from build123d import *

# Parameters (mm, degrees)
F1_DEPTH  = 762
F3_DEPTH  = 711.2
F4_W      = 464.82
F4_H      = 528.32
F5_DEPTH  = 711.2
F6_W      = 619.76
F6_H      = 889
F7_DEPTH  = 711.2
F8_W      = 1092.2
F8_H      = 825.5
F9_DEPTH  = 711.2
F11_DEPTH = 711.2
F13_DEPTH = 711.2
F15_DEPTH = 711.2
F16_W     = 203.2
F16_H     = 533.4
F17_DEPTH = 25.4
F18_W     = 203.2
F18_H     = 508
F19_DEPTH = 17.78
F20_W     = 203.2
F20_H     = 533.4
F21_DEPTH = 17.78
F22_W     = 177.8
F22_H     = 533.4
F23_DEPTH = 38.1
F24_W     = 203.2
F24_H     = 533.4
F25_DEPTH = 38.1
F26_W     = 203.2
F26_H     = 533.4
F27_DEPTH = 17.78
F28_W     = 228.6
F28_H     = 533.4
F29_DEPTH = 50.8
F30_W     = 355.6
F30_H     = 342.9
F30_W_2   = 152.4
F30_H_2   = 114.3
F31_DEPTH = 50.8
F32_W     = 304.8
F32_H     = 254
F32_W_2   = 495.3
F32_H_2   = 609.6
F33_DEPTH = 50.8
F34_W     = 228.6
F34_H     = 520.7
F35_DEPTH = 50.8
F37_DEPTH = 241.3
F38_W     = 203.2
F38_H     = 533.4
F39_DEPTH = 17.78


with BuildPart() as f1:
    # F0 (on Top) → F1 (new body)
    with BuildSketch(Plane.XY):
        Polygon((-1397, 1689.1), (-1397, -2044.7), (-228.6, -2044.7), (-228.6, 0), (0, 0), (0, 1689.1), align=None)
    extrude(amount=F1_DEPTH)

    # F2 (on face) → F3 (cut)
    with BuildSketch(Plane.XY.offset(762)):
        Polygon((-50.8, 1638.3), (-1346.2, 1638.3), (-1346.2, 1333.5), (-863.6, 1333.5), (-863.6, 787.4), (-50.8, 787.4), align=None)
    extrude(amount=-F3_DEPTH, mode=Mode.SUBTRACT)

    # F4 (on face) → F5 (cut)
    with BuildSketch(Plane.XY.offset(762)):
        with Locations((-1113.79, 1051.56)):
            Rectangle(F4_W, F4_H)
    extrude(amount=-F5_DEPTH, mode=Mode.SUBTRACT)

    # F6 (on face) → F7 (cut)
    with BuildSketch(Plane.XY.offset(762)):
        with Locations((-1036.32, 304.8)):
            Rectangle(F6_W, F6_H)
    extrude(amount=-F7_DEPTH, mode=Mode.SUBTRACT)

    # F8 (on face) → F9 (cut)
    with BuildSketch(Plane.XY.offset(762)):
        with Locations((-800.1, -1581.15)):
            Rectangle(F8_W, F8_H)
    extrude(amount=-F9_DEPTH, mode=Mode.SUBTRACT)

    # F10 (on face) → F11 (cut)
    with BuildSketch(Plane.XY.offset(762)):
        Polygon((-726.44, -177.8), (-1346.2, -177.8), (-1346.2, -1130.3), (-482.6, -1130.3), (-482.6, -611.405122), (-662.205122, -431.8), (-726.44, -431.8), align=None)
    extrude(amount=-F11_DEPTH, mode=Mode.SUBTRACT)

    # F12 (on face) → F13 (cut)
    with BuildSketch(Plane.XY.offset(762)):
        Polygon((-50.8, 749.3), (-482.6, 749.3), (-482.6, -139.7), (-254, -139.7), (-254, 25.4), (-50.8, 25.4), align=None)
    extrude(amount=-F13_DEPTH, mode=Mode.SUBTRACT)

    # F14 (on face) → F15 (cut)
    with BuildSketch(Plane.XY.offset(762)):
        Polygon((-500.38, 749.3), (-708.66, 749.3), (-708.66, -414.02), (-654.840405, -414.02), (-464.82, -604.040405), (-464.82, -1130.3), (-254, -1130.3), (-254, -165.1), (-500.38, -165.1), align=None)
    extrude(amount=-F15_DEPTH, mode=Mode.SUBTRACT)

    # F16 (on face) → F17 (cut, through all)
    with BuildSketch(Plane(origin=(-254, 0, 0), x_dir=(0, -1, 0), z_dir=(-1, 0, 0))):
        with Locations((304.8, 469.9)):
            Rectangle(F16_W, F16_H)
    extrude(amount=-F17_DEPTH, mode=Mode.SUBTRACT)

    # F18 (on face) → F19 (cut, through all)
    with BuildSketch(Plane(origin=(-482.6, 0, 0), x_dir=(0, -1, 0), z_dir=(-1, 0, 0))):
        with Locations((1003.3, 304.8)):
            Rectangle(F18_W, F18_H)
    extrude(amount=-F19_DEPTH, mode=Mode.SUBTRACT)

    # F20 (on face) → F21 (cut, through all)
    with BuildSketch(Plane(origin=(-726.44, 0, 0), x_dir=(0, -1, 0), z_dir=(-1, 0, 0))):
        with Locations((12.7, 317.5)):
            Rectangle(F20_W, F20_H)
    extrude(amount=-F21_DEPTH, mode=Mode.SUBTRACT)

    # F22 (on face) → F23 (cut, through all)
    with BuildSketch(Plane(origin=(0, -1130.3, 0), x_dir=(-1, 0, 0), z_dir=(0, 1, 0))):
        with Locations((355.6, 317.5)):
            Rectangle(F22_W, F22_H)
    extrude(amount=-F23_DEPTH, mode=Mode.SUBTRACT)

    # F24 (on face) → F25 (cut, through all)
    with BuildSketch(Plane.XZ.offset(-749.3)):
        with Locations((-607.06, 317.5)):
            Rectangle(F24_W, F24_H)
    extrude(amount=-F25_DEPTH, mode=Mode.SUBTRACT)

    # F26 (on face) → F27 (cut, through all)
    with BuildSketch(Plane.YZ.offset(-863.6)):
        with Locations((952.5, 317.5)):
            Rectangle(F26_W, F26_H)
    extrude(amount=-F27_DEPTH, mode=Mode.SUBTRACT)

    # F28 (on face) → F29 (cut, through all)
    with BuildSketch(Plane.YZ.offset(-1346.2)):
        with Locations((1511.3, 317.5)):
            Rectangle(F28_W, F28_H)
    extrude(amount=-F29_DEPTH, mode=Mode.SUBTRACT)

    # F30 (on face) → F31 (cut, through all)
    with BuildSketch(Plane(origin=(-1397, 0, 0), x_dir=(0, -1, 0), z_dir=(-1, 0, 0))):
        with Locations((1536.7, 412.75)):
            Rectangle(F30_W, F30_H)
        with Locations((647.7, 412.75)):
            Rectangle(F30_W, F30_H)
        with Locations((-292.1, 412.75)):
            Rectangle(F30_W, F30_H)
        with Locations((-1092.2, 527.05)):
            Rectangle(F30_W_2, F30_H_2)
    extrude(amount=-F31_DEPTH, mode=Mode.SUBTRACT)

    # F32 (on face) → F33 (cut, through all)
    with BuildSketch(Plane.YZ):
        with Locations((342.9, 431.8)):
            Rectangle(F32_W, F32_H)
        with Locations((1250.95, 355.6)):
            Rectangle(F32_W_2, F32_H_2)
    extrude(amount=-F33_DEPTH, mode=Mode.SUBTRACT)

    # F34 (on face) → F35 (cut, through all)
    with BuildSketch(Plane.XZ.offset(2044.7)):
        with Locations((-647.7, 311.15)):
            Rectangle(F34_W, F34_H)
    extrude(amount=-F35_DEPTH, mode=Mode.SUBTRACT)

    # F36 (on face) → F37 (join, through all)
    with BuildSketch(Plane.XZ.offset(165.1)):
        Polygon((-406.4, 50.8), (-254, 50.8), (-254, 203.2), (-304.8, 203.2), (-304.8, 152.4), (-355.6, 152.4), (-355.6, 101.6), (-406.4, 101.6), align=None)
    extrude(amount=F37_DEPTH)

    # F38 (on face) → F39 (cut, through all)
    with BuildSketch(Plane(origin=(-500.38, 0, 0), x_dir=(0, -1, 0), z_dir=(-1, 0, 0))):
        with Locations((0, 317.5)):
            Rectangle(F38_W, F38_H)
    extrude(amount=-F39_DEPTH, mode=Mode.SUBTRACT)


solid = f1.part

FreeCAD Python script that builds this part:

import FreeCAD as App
import Part
import Sketcher
Q = App.Units.Quantity

doc = App.newDocument("Part")
body = doc.addObject("PartDesign::Body", "Body")

# Sketch on XY plane
sketch1 = body.newObject("Sketcher::SketchObject", "Sketch")
sketch1.AttachmentSupport = (doc.getObject("XY_Plane"), [""])
sketch1.MapMode = "FlatFace"
sketch1.addGeometry(Part.LineSegment(App.Vector(-1397, 1689.1, 0), App.Vector(-1397, -2044.7, 0)), False)
sketch1.addGeometry(Part.LineSegment(App.Vector(-1397, -2044.7, 0), App.Vector(-228.6, -2044.7, 0)), False)
sketch1.addGeometry(Part.LineSegment(App.Vector(-228.6, -2044.7, 0), App.Vector(-228.6, 0, 0)), False)
sketch1.addGeometry(Part.LineSegment(App.Vector(-228.6, 0, 0), App.Vector(0, 0, 0)), False)
sketch1.addGeometry(Part.LineSegment(App.Vector(0, 0, 0), App.Vector(0, 1689.1, 0)), False)
sketch1.addGeometry(Part.LineSegment(App.Vector(0, 1689.1, 0), App.Vector(-1397, 1689.1, 0)), False)
sketch1.addConstraint(Sketcher.Constraint("Coincident", 0, 2, 1, 1))
sketch1.addConstraint(Sketcher.Constraint("Coincident", 1, 2, 2, 1))
sketch1.addConstraint(Sketcher.Constraint("Coincident", 2, 2, 3, 1))
sketch1.addConstraint(Sketcher.Constraint("Coincident", 3, 2, 4, 1))
sketch1.addConstraint(Sketcher.Constraint("Coincident", 4, 2, 5, 1))
sketch1.addConstraint(Sketcher.Constraint("Coincident", 5, 2, 0, 1))
sketch1.addConstraint(Sketcher.Constraint("Vertical", 0))
sketch1.addConstraint(Sketcher.Constraint("Horizontal", 1))
sketch1.addConstraint(Sketcher.Constraint("Vertical", 2))
sketch1.addConstraint(Sketcher.Constraint("Horizontal", 3))
sketch1.addConstraint(Sketcher.Constraint("Vertical", 4))
sketch1.addConstraint(Sketcher.Constraint("Horizontal", 5))
sketch1.addConstraint(Sketcher.Constraint("Coincident", 3, 2, -1, 1))
sketch1.addConstraint(Sketcher.Constraint("DistanceX", 1, 1, 1, 2, Q("46 in")))
sketch1.addConstraint(Sketcher.Constraint("DistanceX", 3, 1, 3, 2, Q("9 in")))
sketch1.addConstraint(Sketcher.Constraint("DistanceY", 0, 2, 0, 1, Q("147 in")))
sketch1.addConstraint(Sketcher.Constraint("DistanceY", 2, 1, 2, 2, Q("80.5 in")))
pad1 = body.newObject("PartDesign::Pad", "Pad")
pad1.Profile = sketch1
pad1.Length = Q("30 in")

# Sketch on XY plane
sketch2 = body.newObject("Sketcher::SketchObject", "Sketch001")
sketch2.AttachmentSupport = (doc.getObject("XY_Plane"), [""])
sketch2.MapMode = "FlatFace"
sketch2.AttachmentOffset = App.Placement(App.Vector(0, 0, 30 * 25.4), App.Rotation())
sketch2.addGeometry(Part.LineSegment(App.Vector(-50.8, 1638.3, 0), App.Vector(-1346.2, 1638.3, 0)), False)
sketch2.addGeometry(Part.LineSegment(App.Vector(-1346.2, 1638.3, 0), App.Vector(-1346.2, 1333.5, 0)), False)
sketch2.addGeometry(Part.LineSegment(App.Vector(-1346.2, 1333.5, 0), App.Vector(-863.6, 1333.5, 0)), False)
sketch2.addGeometry(Part.LineSegment(App.Vector(-863.6, 1333.5, 0), App.Vector(-863.6, 787.4, 0)), False)
sketch2.addGeometry(Part.LineSegment(App.Vector(-863.6, 787.4, 0), App.Vector(-50.8, 787.4, 0)), False)
sketch2.addGeometry(Part.LineSegment(App.Vector(-50.8, 787.4, 0), App.Vector(-50.8, 1638.3, 0)), False)
sketch2.addConstraint(Sketcher.Constraint("Coincident", 0, 2, 1, 1))
sketch2.addConstraint(Sketcher.Constraint("Coincident", 1, 2, 2, 1))
sketch2.addConstraint(Sketcher.Constraint("Coincident", 2, 2, 3, 1))
sketch2.addConstraint(Sketcher.Constraint("Coincident", 3, 2, 4, 1))
sketch2.addConstraint(Sketcher.Constraint("Coincident", 4, 2, 5, 1))
sketch2.addConstraint(Sketcher.Constraint("Coincident", 5, 2, 0, 1))
sketch2.addConstraint(Sketcher.Constraint("Horizontal", 0))
sketch2.addConstraint(Sketcher.Constraint("Vertical", 1))
sketch2.addConstraint(Sketcher.Constraint("Horizontal", 2))
sketch2.addConstraint(Sketcher.Constraint("Vertical", 3))
sketch2.addConstraint(Sketcher.Constraint("Horizontal", 4))
sketch2.addConstraint(Sketcher.Constraint("Vertical", 5))
sketch2.addConstraint(Sketcher.Constraint("DistanceX", 0, 2, 0, 1, Q("51 in")))
sketch2.addConstraint(Sketcher.Constraint("DistanceX", 2, 1, 2, 2, Q("19 in")))
sketch2.addConstraint(Sketcher.Constraint("DistanceY", 1, 2, 1, 1, Q("12 in")))
sketch2.addConstraint(Sketcher.Constraint("DistanceY", 3, 2, 3, 1, Q("21.5 in")))
sketch2.addConstraint(Sketcher.Constraint("DistanceX", 0, 2, -1, 1, Q("53 in")))
sketch2.addConstraint(Sketcher.Constraint("DistanceY", -1, 1, 3, 2, Q("31 in")))
pocket1 = body.newObject("PartDesign::Pocket", "Pocket")
pocket1.Profile = sketch2
pocket1.Length = Q("28 in")

# Sketch on XY plane
sketch3 = body.newObject("Sketcher::SketchObject", "Sketch002")
sketch3.AttachmentSupport = (doc.getObject("XY_Plane"), [""])
sketch3.MapMode = "FlatFace"
sketch3.AttachmentOffset = App.Placement(App.Vector(0, 0, 30 * 25.4), App.Rotation())
sketch3.addGeometry(Part.LineSegment(App.Vector(-1346.2, 1315.72, 0), App.Vector(-1346.2, 787.4, 0)), False)
sketch3.addGeometry(Part.LineSegment(App.Vector(-1346.2, 787.4, 0), App.Vector(-881.38, 787.4, 0)), False)
sketch3.addGeometry(Part.LineSegment(App.Vector(-881.38, 787.4, 0), App.Vector(-881.38, 1315.72, 0)), False)
sketch3.addGeometry(Part.LineSegment(App.Vector(-881.38, 1315.72, 0), App.Vector(-1346.2, 1315.72, 0)), False)
sketch3.addConstraint(Sketcher.Constraint("Coincident", 0, 2, 1, 1))
sketch3.addConstraint(Sketcher.Constraint("Coincident", 1, 2, 2, 1))
sketch3.addConstraint(Sketcher.Constraint("Coincident", 2, 2, 3, 1))
sketch3.addConstraint(Sketcher.Constraint("Coincident", 3, 2, 0, 1))
sketch3.addConstraint(Sketcher.Constraint("Vertical", 0))
sketch3.addConstraint(Sketcher.Constraint("Horizontal", 1))
sketch3.addConstraint(Sketcher.Constraint("Vertical", 2))
sketch3.addConstraint(Sketcher.Constraint("Horizontal", 3))
sketch3.addConstraint(Sketcher.Constraint("DistanceX", 1, 1, 1, 2, Q("18.3 in")))
sketch3.addConstraint(Sketcher.Constraint("DistanceY", 0, 2, 0, 1, Q("20.8 in")))
sketch3.addConstraint(Sketcher.Constraint("DistanceX", 0, 2, -1, 1, Q("53 in")))
sketch3.addConstraint(Sketcher.Constraint("DistanceY", -1, 1, 0, 2, Q("31 in")))
pocket2 = body.newObject("PartDesign::Pocket", "Pocket001")
pocket2.Profile = sketch3
pocket2.Length = Q("28 in")

# Sketch on XY plane
sketch4 = body.newObject("Sketcher::SketchObject", "Sketch003")
sketch4.AttachmentSupport = (doc.getObject("XY_Plane"), [""])
sketch4.MapMode = "FlatFace"
sketch4.AttachmentOffset = App.Placement(App.Vector(0, 0, 30 * 25.4), App.Rotation())
sketch4.addGeometry(Part.LineSegment(App.Vector(-1346.2, 749.3, 0), App.Vector(-1346.2, -139.7, 0)), False)
sketch4.addGeometry(Part.LineSegment(App.Vector(-1346.2, -139.7, 0), App.Vector(-726.44, -139.7, 0)), False)
sketch4.addGeometry(Part.LineSegment(App.Vector(-726.44, -139.7, 0), App.Vector(-726.44, 749.3, 0)), False)
sketch4.addGeometry(Part.LineSegment(App.Vector(-726.44, 749.3, 0), App.Vector(-1346.2, 749.3, 0)), False)
sketch4.addConstraint(Sketcher.Constraint("Coincident", 0, 2, 1, 1))
sketch4.addConstraint(Sketcher.Constraint("Coincident", 1, 2, 2, 1))
sketch4.addConstraint(Sketcher.Constraint("Coincident", 2, 2, 3, 1))
sketch4.addConstraint(Sketcher.Constraint("Coincident", 3, 2, 0, 1))
sketch4.addConstraint(Sketcher.Constraint("Vertical", 0))
sketch4.addConstraint(Sketcher.Constraint("Horizontal", 1))
sketch4.addConstraint(Sketcher.Constraint("Vertical", 2))
sketch4.addConstraint(Sketcher.Constraint("Horizontal", 3))
sketch4.addConstraint(Sketcher.Constraint("DistanceY", 0, 2, 0, 1, Q("35 in")))
sketch4.addConstraint(Sketcher.Constraint("DistanceX", 1, 1, 1, 2, Q("24.4 in")))
sketch4.addConstraint(Sketcher.Constraint("DistanceX", 0, 2, -1, 1, Q("53 in")))
sketch4.addConstraint(Sketcher.Constraint("DistanceY", 0, 2, -1, 1, Q("5.5 in")))
pocket3 = body.newObject("PartDesign::Pocket", "Pocket002")
pocket3.Profile = sketch4
pocket3.Length = Q("28 in")

# Sketch on XY plane
sketch5 = body.newObject("Sketcher::SketchObject", "Sketch004")
sketch5.AttachmentSupport = (doc.getObject("XY_Plane"), [""])
sketch5.MapMode = "FlatFace"
sketch5.AttachmentOffset = App.Placement(App.Vector(0, 0, 30 * 25.4), App.Rotation())
sketch5.addGeometry(Part.LineSegment(App.Vector(-1346.2, -1168.4, 0), App.Vector(-1346.2, -1993.9, 0)), False)
sketch5.addGeometry(Part.LineSegment(App.Vector(-1346.2, -1993.9, 0), App.Vector(-254, -1993.9, 0)), False)
sketch5.addGeometry(Part.LineSegment(App.Vector(-254, -1993.9, 0), App.Vector(-254, -1168.4, 0)), False)
sketch5.addGeometry(Part.LineSegment(App.Vector(-254, -1168.4, 0), App.Vector(-1346.2, -1168.4, 0)), False)
sketch5.addConstraint(Sketcher.Constraint("Coincident", 0, 2, 1, 1))
sketch5.addConstraint(Sketcher.Constraint("Coincident", 1, 2, 2, 1))
sketch5.addConstraint(Sketcher.Constraint("Coincident", 2, 2, 3, 1))
sketch5.addConstraint(Sketcher.Constraint("Coincident", 3, 2, 0, 1))
sketch5.addConstraint(Sketcher.Constraint("Vertical", 0))
sketch5.addConstraint(Sketcher.Constraint("Horizontal", 1))
sketch5.addConstraint(Sketcher.Constraint("Vertical", 2))
sketch5.addConstraint(Sketcher.Constraint("Horizontal", 3))
sketch5.addConstraint(Sketcher.Constraint("DistanceX", 1, 1, 1, 2, Q("43 in")))
sketch5.addConstraint(Sketcher.Constraint("DistanceY", 0, 2, 0, 1, Q("32.5 in")))
sketch5.addConstraint(Sketcher.Constraint("DistanceX", 0, 2, -1, 1, Q("53 in")))
sketch5.addConstraint(Sketcher.Constraint("DistanceY", 2, 2, -1, 1, Q("46 in")))
pocket4 = body.newObject("PartDesign::Pocket", "Pocket003")
pocket4.Profile = sketch5
pocket4.Length = Q("28 in")

# Sketch on XY plane
sketch6 = body.newObject("Sketcher::SketchObject", "Sketch005")
sketch6.AttachmentSupport = (doc.getObject("XY_Plane"), [""])
sketch6.MapMode = "FlatFace"
sketch6.AttachmentOffset = App.Placement(App.Vector(0, 0, 30 * 25.4), App.Rotation())
sketch6.addGeometry(Part.LineSegment(App.Vector(-726.44, -177.8, 0), App.Vector(-1346.2, -177.8, 0)), False)
sketch6.addGeometry(Part.LineSegment(App.Vector(-1346.2, -177.8, 0), App.Vector(-1346.2, -1130.3, 0)), False)
sketch6.addGeometry(Part.LineSegment(App.Vector(-1346.2, -1130.3, 0), App.Vector(-482.6, -1130.3, 0)), False)
sketch6.addGeometry(Part.LineSegment(App.Vector(-482.6, -1130.3, 0), App.Vector(-482.6, -611.405122, 0)), False)
sketch6.addGeometry(Part.LineSegment(App.Vector(-482.6, -611.405122, 0), App.Vector(-662.205122, -431.8, 0)), False)
sketch6.addGeometry(Part.LineSegment(App.Vector(-662.205122, -431.8, 0), App.Vector(-726.44, -431.8, 0)), False)
sketch6.addGeometry(Part.LineSegment(App.Vector(-726.44, -431.8, 0), App.Vector(-726.44, -177.8, 0)), False)
sketch6.addConstraint(Sketcher.Constraint("Coincident", 0, 2, 1, 1))
sketch6.addConstraint(Sketcher.Constraint("Coincident", 1, 2, 2, 1))
sketch6.addConstraint(Sketcher.Constraint("Coincident", 2, 2, 3, 1))
sketch6.addConstraint(Sketcher.Constraint("Coincident", 3, 2, 4, 1))
sketch6.addConstraint(Sketcher.Constraint("Coincident", 4, 2, 5, 1))
sketch6.addConstraint(Sketcher.Constraint("Coincident", 5, 2, 6, 1))
sketch6.addConstraint(Sketcher.Constraint("Coincident", 6, 2, 0, 1))
sketch6.addConstraint(Sketcher.Constraint("Horizontal", 0))
sketch6.addConstraint(Sketcher.Constraint("Vertical", 1))
sketch6.addConstraint(Sketcher.Constraint("Horizontal", 2))
sketch6.addConstraint(Sketcher.Constraint("Vertical", 3))
sketch6.addConstraint(Sketcher.Constraint("Horizontal", 5))
sketch6.addConstraint(Sketcher.Constraint("Vertical", 6))
sketch6.addConstraint(Sketcher.Constraint("DistanceX", 2, 1, 2, 2, Q("34 in")))
sketch6.addConstraint(Sketcher.Constraint("DistanceY", 6, 1, 6, 2, Q("10 in")))
sketch6.addConstraint(Sketcher.Constraint("Distance", 4, Q("10 in")))
sketch6.addConstraint(Sketcher.Constraint("DistanceX", 0, 2, 0, 1, Q("24.4 in")))
sketch6.addConstraint(Sketcher.Constraint("DistanceY", 1, 2, 1, 1, Q("37.5 in")))
sketch6.addConstraint(Sketcher.Constraint("DistanceX", 0, 2, -1, 1, Q("53 in")))
sketch6.addConstraint(Sketcher.Constraint("DistanceY", 0, 2, -1, 1, Q("7 in")))
sketch6.addConstraint(Sketcher.Constraint("Angle", 4, Q("135 deg")))
pocket5 = body.newObject("PartDesign::Pocket", "Pocket004")
pocket5.Profile = sketch6
pocket5.Length = Q("28 in")

# Sketch on XY plane
sketch7 = body.newObject("Sketcher::SketchObject", "Sketch006")
sketch7.AttachmentSupport = (doc.getObject("XY_Plane"), [""])
sketch7.MapMode = "FlatFace"
sketch7.AttachmentOffset = App.Placement(App.Vector(0, 0, 30 * 25.4), App.Rotation())
sketch7.addGeometry(Part.LineSegment(App.Vector(-50.8, 749.3, 0), App.Vector(-482.6, 749.3, 0)), False)
sketch7.addGeometry(Part.LineSegment(App.Vector(-482.6, 749.3, 0), App.Vector(-482.6, -139.7, 0)), False)
sketch7.addGeometry(Part.LineSegment(App.Vector(-482.6, -139.7, 0), App.Vector(-254, -139.7, 0)), False)
sketch7.addGeometry(Part.LineSegment(App.Vector(-254, -139.7, 0), App.Vector(-254, 25.4, 0)), False)
sketch7.addGeometry(Part.LineSegment(App.Vector(-254, 25.4, 0), App.Vector(-50.8, 25.4, 0)), False)
sketch7.addGeometry(Part.LineSegment(App.Vector(-50.8, 25.4, 0), App.Vector(-50.8, 749.3, 0)), False)
sketch7.addConstraint(Sketcher.Constraint("Coincident", 0, 2, 1, 1))
sketch7.addConstraint(Sketcher.Constraint("Coincident", 1, 2, 2, 1))
sketch7.addConstraint(Sketcher.Constraint("Coincident", 2, 2, 3, 1))
sketch7.addConstraint(Sketcher.Constraint("Coincident", 3, 2, 4, 1))
sketch7.addConstraint(Sketcher.Constraint("Coincident", 4, 2, 5, 1))
sketch7.addConstraint(Sketcher.Constraint("Coincident", 5, 2, 0, 1))
sketch7.addConstraint(Sketcher.Constraint("Horizontal", 0))
sketch7.addConstraint(Sketcher.Constraint("Vertical", 1))
sketch7.addConstraint(Sketcher.Constraint("Horizontal", 2))
sketch7.addConstraint(Sketcher.Constraint("Vertical", 3))
sketch7.addConstraint(Sketcher.Constraint("Horizontal", 4))
sketch7.addConstraint(Sketcher.Constraint("Vertical", 5))
sketch7.addConstraint(Sketcher.Constraint("DistanceX", 0, 2, 0, 1, Q("17 in")))
sketch7.addConstraint(Sketcher.Constraint("DistanceX", 2, 1, 2, 2, Q("9 in")))
sketch7.addConstraint(Sketcher.Constraint("DistanceY", 1, 2, 1, 1, Q("35 in")))
sketch7.addConstraint(Sketcher.Constraint("DistanceY", 3, 1, 3, 2, Q("6.5 in")))
sketch7.addConstraint(Sketcher.Constraint("DistanceX", 0, 2, -1, 1, Q("19 in")))
sketch7.addConstraint(Sketcher.Constraint("DistanceY", -1, 1, 3, 2, Q("1 in")))
pocket6 = body.newObject("PartDesign::Pocket", "Pocket005")
pocket6.Profile = sketch7
pocket6.Length = Q("28 in")

# Sketch on XY plane
sketch8 = body.newObject("Sketcher::SketchObject", "Sketch007")
sketch8.AttachmentSupport = (doc.getObject("XY_Plane"), [""])
sketch8.MapMode = "FlatFace"
sketch8.AttachmentOffset = App.Placement(App.Vector(0, 0, 30 * 25.4), App.Rotation())
sketch8.addGeometry(Part.LineSegment(App.Vector(-500.38, 749.3, 0), App.Vector(-708.66, 749.3, 0)), False)
sketch8.addGeometry(Part.LineSegment(App.Vector(-708.66, 749.3, 0), App.Vector(-708.66, -414.02, 0)), False)
sketch8.addGeometry(Part.LineSegment(App.Vector(-708.66, -414.02, 0), App.Vector(-654.840405, -414.02, 0)), False)
sketch8.addGeometry(Part.LineSegment(App.Vector(-654.840405, -414.02, 0), App.Vector(-464.82, -604.040405, 0)), False)
sketch8.addGeometry(Part.LineSegment(App.Vector(-464.82, -604.040405, 0), App.Vector(-464.82, -1130.3, 0)), False)
sketch8.addGeometry(Part.LineSegment(App.Vector(-464.82, -1130.3, 0), App.Vector(-254, -1130.3, 0)), False)
sketch8.addGeometry(Part.LineSegment(App.Vector(-254, -1130.3, 0), App.Vector(-254, -165.1, 0)), False)
sketch8.addGeometry(Part.LineSegment(App.Vector(-254, -165.1, 0), App.Vector(-500.38, -165.1, 0)), False)
sketch8.addGeometry(Part.LineSegment(App.Vector(-500.38, -165.1, 0), App.Vector(-500.38, 749.3, 0)), False)
sketch8.addConstraint(Sketcher.Constraint("Coincident", 0, 2, 1, 1))
sketch8.addConstraint(Sketcher.Constraint("Coincident", 1, 2, 2, 1))
sketch8.addConstraint(Sketcher.Constraint("Coincident", 2, 2, 3, 1))
sketch8.addConstraint(Sketcher.Constraint("Coincident", 3, 2, 4, 1))
sketch8.addConstraint(Sketcher.Constraint("Coincident", 4, 2, 5, 1))
sketch8.addConstraint(Sketcher.Constraint("Coincident", 5, 2, 6, 1))
sketch8.addConstraint(Sketcher.Constraint("Coincident", 6, 2, 7, 1))
sketch8.addConstraint(Sketcher.Constraint("Coincident", 7, 2, 8, 1))
sketch8.addConstraint(Sketcher.Constraint("Coincident", 8, 2, 0, 1))
sketch8.addConstraint(Sketcher.Constraint("Horizontal", 0))
sketch8.addConstraint(Sketcher.Constraint("Vertical", 1))
sketch8.addConstraint(Sketcher.Constraint("Horizontal", 2))
sketch8.addConstraint(Sketcher.Constraint("Vertical", 4))
sketch8.addConstraint(Sketcher.Constraint("Horizontal", 5))
sketch8.addConstraint(Sketcher.Constraint("Vertical", 6))
sketch8.addConstraint(Sketcher.Constraint("Horizontal", 7))
sketch8.addConstraint(Sketcher.Constraint("Vertical", 8))
sketch8.addConstraint(Sketcher.Constraint("DistanceY", 6, 1, 6, 2, Q("38 in")))
sketch8.addConstraint(Sketcher.Constraint("DistanceY", 8, 1, 8, 2, Q("36 in")))
sketch8.addConstraint(Sketcher.Constraint("DistanceX", 0, 2, 0, 1, Q("8.2 in")))
sketch8.addConstraint(Sketcher.Constraint("DistanceX", 5, 1, 5, 2, Q("8.3 in")))
sketch8.addConstraint(Sketcher.Constraint("DistanceX", 7, 2, 7, 1, Q("9.7 in")))
sketch8.addConstraint(Sketcher.Constraint("DistanceY", 1, 2, 1, 1, Q("45.8 in")))
sketch8.addConstraint(Sketcher.Constraint("DistanceX", 5, 2, -1, 1, Q("10 in")))
sketch8.addConstraint(Sketcher.Constraint("Angle", 3, Q("-45 deg")))
sketch8.addConstraint(Sketcher.Constraint("DistanceY", -1, 1, 0, 2, Q("29.5 in")))
sketch8.addConstraint(Sketcher.Constraint("DistanceX", 2, 1, 2, 2, Q("53.819595 mm")))
pocket7 = body.newObject("PartDesign::Pocket", "Pocket006")
pocket7.Profile = sketch8
pocket7.Length = Q("28 in")

# Sketch on YZ plane
sketch9 = body.newObject("Sketcher::SketchObject", "Sketch008")
sketch9.AttachmentSupport = (doc.getObject("YZ_Plane"), [""])
sketch9.MapMode = "FlatFace"
sketch9.AttachmentOffset = App.Placement(App.Vector(0, 0, -10 * 25.4), App.Rotation())
sketch9.addGeometry(Part.LineSegment(App.Vector(-203.2, 736.6, 0), App.Vector(-203.2, 203.2, 0)), False)
sketch9.addGeometry(Part.LineSegment(App.Vector(-203.2, 203.2, 0), App.Vector(-406.4, 203.2, 0)), False)
sketch9.addGeometry(Part.LineSegment(App.Vector(-406.4, 203.2, 0), App.Vector(-406.4, 736.6, 0)), False)
sketch9.addGeometry(Part.LineSegment(App.Vector(-406.4, 736.6, 0), App.Vector(-203.2, 736.6, 0)), False)
sketch9.addConstraint(Sketcher.Constraint("Coincident", 0, 2, 1, 1))
sketch9.addConstraint(Sketcher.Constraint("Coincident", 1, 2, 2, 1))
sketch9.addConstraint(Sketcher.Constraint("Coincident", 2, 2, 3, 1))
sketch9.addConstraint(Sketcher.Constraint("Coincident", 3, 2, 0, 1))
sketch9.addConstraint(Sketcher.Constraint("Vertical", 0))
sketch9.addConstraint(Sketcher.Constraint("Horizontal", 1))
sketch9.addConstraint(Sketcher.Constraint("Vertical", 2))
sketch9.addConstraint(Sketcher.Constraint("Horizontal", 3))
sketch9.addConstraint(Sketcher.Constraint("DistanceX", 1, 2, 1, 1, Q("8 in")))
sketch9.addConstraint(Sketcher.Constraint("DistanceY", 0, 2, 0, 1, Q("21 in")))
sketch9.addConstraint(Sketcher.Constraint("DistanceX", 0, 2, -1, 1, Q("8 in")))
sketch9.addConstraint(Sketcher.Constraint("DistanceY", -1, 1, 0, 2, Q("8 in")))
pocket8 = body.newObject("PartDesign::Pocket", "Pocket007")
pocket8.Profile = sketch9
pocket8.Type = "ThroughAll"
pocket8.Reversed = True

# Sketch on YZ plane
sketch10 = body.newObject("Sketcher::SketchObject", "Sketch009")
sketch10.AttachmentSupport = (doc.getObject("YZ_Plane"), [""])
sketch10.MapMode = "FlatFace"
sketch10.AttachmentOffset = App.Placement(App.Vector(0, 0, -19 * 25.4), App.Rotation())
sketch10.addGeometry(Part.LineSegment(App.Vector(-901.7, 558.8, 0), App.Vector(-901.7, 50.8, 0)), False)
sketch10.addGeometry(Part.LineSegment(App.Vector(-901.7, 50.8, 0), App.Vector(-1104.9, 50.8, 0)), False)
sketch10.addGeometry(Part.LineSegment(App.Vector(-1104.9, 50.8, 0), App.Vector(-1104.9, 558.8, 0)), False)
sketch10.addGeometry(Part.LineSegment(App.Vector(-1104.9, 558.8, 0), App.Vector(-901.7, 558.8, 0)), False)
sketch10.addConstraint(Sketcher.Constraint("Coincident", 0, 2, 1, 1))
sketch10.addConstraint(Sketcher.Constraint("Coincident", 1, 2, 2, 1))
sketch10.addConstraint(Sketcher.Constraint("Coincident", 2, 2, 3, 1))
sketch10.addConstraint(Sketcher.Constraint("Coincident", 3, 2, 0, 1))
sketch10.addConstraint(Sketcher.Constraint("Vertical", 0))
sketch10.addConstraint(Sketcher.Constraint("Horizontal", 1))
sketch10.addConstraint(Sketcher.Constraint("Vertical", 2))
sketch10.addConstraint(Sketcher.Constraint("Horizontal", 3))
sketch10.addConstraint(Sketcher.Constraint("DistanceX", 1, 2, 1, 1, Q("8 in")))
sketch10.addConstraint(Sketcher.Constraint("DistanceY", 0, 2, 0, 1, Q("20 in")))
sketch10.addConstraint(Sketcher.Constraint("DistanceY", -1, 1, 0, 2, Q("2 in")))
sketch10.addConstraint(Sketcher.Constraint("DistanceX", 0, 2, -1, 1, Q("35.5 in")))
pocket9 = body.newObject("PartDesign::Pocket", "Pocket008")
pocket9.Profile = sketch10
pocket9.Length = Q("0.7 in")
pocket9.Reversed = True

# Sketch on YZ plane
sketch11 = body.newObject("Sketcher::SketchObject", "Sketch010")
sketch11.AttachmentSupport = (doc.getObject("YZ_Plane"), [""])
sketch11.MapMode = "FlatFace"
sketch11.AttachmentOffset = App.Placement(App.Vector(0, 0, -28.6 * 25.4), App.Rotation())
sketch11.addGeometry(Part.LineSegment(App.Vector(88.9, 584.2, 0), App.Vector(88.9, 50.8, 0)), False)
sketch11.addGeometry(Part.LineSegment(App.Vector(88.9, 50.8, 0), App.Vector(-114.3, 50.8, 0)), False)
sketch11.addGeometry(Part.LineSegment(App.Vector(-114.3, 50.8, 0), App.Vector(-114.3, 584.2, 0)), False)
sketch11.addGeometry(Part.LineSegment(App.Vector(-114.3, 584.2, 0), App.Vector(88.9, 584.2, 0)), False)
sketch11.addConstraint(Sketcher.Constraint("Coincident", 0, 2, 1, 1))
sketch11.addConstraint(Sketcher.Constraint("Coincident", 1, 2, 2, 1))
sketch11.addConstraint(Sketcher.Constraint("Coincident", 2, 2, 3, 1))
sketch11.addConstraint(Sketcher.Constraint("Coincident", 3, 2, 0, 1))
sketch11.addConstraint(Sketcher.Constraint("Vertical", 0))
sketch11.addConstraint(Sketcher.Constraint("Horizontal", 1))
sketch11.addConstraint(Sketcher.Constraint("Vertical", 2))
sketch11.addConstraint(Sketcher.Constraint("Horizontal", 3))
sketch11.addConstraint(Sketcher.Constraint("DistanceX", 1, 2, 1, 1, Q("8 in")))
sketch11.addConstraint(Sketcher.Constraint("DistanceY", 0, 2, 0, 1, Q("21 in")))
sketch11.addConstraint(Sketcher.Constraint("DistanceY", -1, 1, 0, 2, Q("2 in")))
sketch11.addConstraint(Sketcher.Constraint("DistanceX", -1, 1, 0, 2, Q("3.5 in")))
pocket10 = body.newObject("PartDesign::Pocket", "Pocket009")
pocket10.Profile = sketch11
pocket10.Length = Q("0.7 in")
pocket10.Reversed = True

# Sketch on XZ plane
sketch12 = body.newObject("Sketcher::SketchObject", "Sketch011")
sketch12.AttachmentSupport = (doc.getObject("XZ_Plane"), [""])
sketch12.MapMode = "FlatFace"
sketch12.AttachmentOffset = App.Placement(App.Vector(0, 0, 44.5 * 25.4), App.Rotation())
sketch12.addGeometry(Part.LineSegment(App.Vector(-266.7, 584.2, 0), App.Vector(-266.7, 50.8, 0)), False)
sketch12.addGeometry(Part.LineSegment(App.Vector(-266.7, 50.8, 0), App.Vector(-444.5, 50.8, 0)), False)
sketch12.addGeometry(Part.LineSegment(App.Vector(-444.5, 50.8, 0), App.Vector(-444.5, 584.2, 0)), False)
sketch12.addGeometry(Part.LineSegment(App.Vector(-444.5, 584.2, 0), App.Vector(-266.7, 584.2, 0)), False)
sketch12.addConstraint(Sketcher.Constraint("Coincident", 0, 2, 1, 1))
sketch12.addConstraint(Sketcher.Constraint("Coincident", 1, 2, 2, 1))
sketch12.addConstraint(Sketcher.Constraint("Coincident", 2, 2, 3, 1))
sketch12.addConstraint(Sketcher.Constraint("Coincident", 3, 2, 0, 1))
sketch12.addConstraint(Sketcher.Constraint("Vertical", 0))
sketch12.addConstraint(Sketcher.Constraint("Horizontal", 1))
sketch12.addConstraint(Sketcher.Constraint("Vertical", 2))
sketch12.addConstraint(Sketcher.Constraint("Horizontal", 3))
sketch12.addConstraint(Sketcher.Constraint("DistanceX", 1, 2, 1, 1, Q("7 in")))
sketch12.addConstraint(Sketcher.Constraint("DistanceY", 0, 2, 0, 1, Q("21 in")))
sketch12.addConstraint(Sketcher.Constraint("DistanceY", -1, 1, 0, 2, Q("2 in")))
sketch12.addConstraint(Sketcher.Constraint("DistanceX", 0, 2, -1, 1, Q("10.5 in")))
pocket11 = body.newObject("PartDesign::Pocket", "Pocket010")
pocket11.Profile = sketch12
pocket11.Length = Q("1.5 in")
pocket11.Reversed = True

# Sketch on XZ plane
sketch13 = body.newObject("Sketcher::SketchObject", "Sketch012")
sketch13.AttachmentSupport = (doc.getObject("XZ_Plane"), [""])
sketch13.MapMode = "FlatFace"
sketch13.AttachmentOffset = App.Placement(App.Vector(0, 0, -29.5 * 25.4), App.Rotation())
sketch13.addGeometry(Part.LineSegment(App.Vector(-708.66, 584.2, 0), App.Vector(-708.66, 50.8, 0)), False)
sketch13.addGeometry(Part.LineSegment(App.Vector(-708.66, 50.8, 0), App.Vector(-505.46, 50.8, 0)), False)
sketch13.addGeometry(Part.LineSegment(App.Vector(-505.46, 50.8, 0), App.Vector(-505.46, 584.2, 0)), False)
sketch13.addGeometry(Part.LineSegment(App.Vector(-505.46, 584.2, 0), App.Vector(-708.66, 584.2, 0)), False)
sketch13.addConstraint(Sketcher.Constraint("Coincident", 0, 2, 1, 1))
sketch13.addConstraint(Sketcher.Constraint("Coincident", 1, 2, 2, 1))
sketch13.addConstraint(Sketcher.Constraint("Coincident", 2, 2, 3, 1))
sketch13.addConstraint(Sketcher.Constraint("Coincident", 3, 2, 0, 1))
sketch13.addConstraint(Sketcher.Constraint("Vertical", 0))
sketch13.addConstraint(Sketcher.Constraint("Horizontal", 1))
sketch13.addConstraint(Sketcher.Constraint("Vertical", 2))
sketch13.addConstraint(Sketcher.Constraint("Horizontal", 3))
sketch13.addConstraint(Sketcher.Constraint("DistanceX", 1, 1, 1, 2, Q("8 in")))
sketch13.addConstraint(Sketcher.Constraint("DistanceY", 0, 2, 0, 1, Q("21 in")))
sketch13.addConstraint(Sketcher.Constraint("DistanceY", -1, 1, 0, 2, Q("2 in")))
sketch13.addConstraint(Sketcher.Constraint("DistanceX", 0, 2, -1, 1, Q("27.9 in")))
pocket12 = body.newObject("PartDesign::Pocket", "Pocket011")
pocket12.Profile = sketch13
pocket12.Length = Q("1.5 in")

# Sketch on YZ plane
sketch14 = body.newObject("Sketcher::SketchObject", "Sketch013")
sketch14.AttachmentSupport = (doc.getObject("YZ_Plane"), [""])
sketch14.MapMode = "FlatFace"
sketch14.AttachmentOffset = App.Placement(App.Vector(0, 0, -34 * 25.4), App.Rotation())
sketch14.addGeometry(Part.LineSegment(App.Vector(850.9, 584.2, 0), App.Vector(850.9, 50.8, 0)), False)
sketch14.addGeometry(Part.LineSegment(App.Vector(850.9, 50.8, 0), App.Vector(1054.1, 50.8, 0)), False)
sketch14.addGeometry(Part.LineSegment(App.Vector(1054.1, 50.8, 0), App.Vector(1054.1, 584.2, 0)), False)
sketch14.addGeometry(Part.LineSegment(App.Vector(1054.1, 584.2, 0), App.Vector(850.9, 584.2, 0)), False)
sketch14.addConstraint(Sketcher.Constraint("Coincident", 0, 2, 1, 1))
sketch14.addConstraint(Sketcher.Constraint("Coincident", 1, 2, 2, 1))
sketch14.addConstraint(Sketcher.Constraint("Coincident", 2, 2, 3, 1))
sketch14.addConstraint(Sketcher.Constraint("Coincident", 3, 2, 0, 1))
sketch14.addConstraint(Sketcher.Constraint("Vertical", 0))
sketch14.addConstraint(Sketcher.Constraint("Horizontal", 1))
sketch14.addConstraint(Sketcher.Constraint("Vertical", 2))
sketch14.addConstraint(Sketcher.Constraint("Horizontal", 3))
sketch14.addConstraint(Sketcher.Constraint("DistanceX", 1, 1, 1, 2, Q("8 in")))
sketch14.addConstraint(Sketcher.Constraint("DistanceY", 0, 2, 0, 1, Q("21 in")))
sketch14.addConstraint(Sketcher.Constraint("DistanceY", -1, 1, 0, 2, Q("2 in")))
sketch14.addConstraint(Sketcher.Constraint("DistanceX", -1, 1, 0, 2, Q("33.5 in")))
pocket13 = body.newObject("PartDesign::Pocket", "Pocket012")
pocket13.Profile = sketch14
pocket13.Length = Q("0.7 in")

# Sketch on YZ plane
sketch15 = body.newObject("Sketcher::SketchObject", "Sketch014")
sketch15.AttachmentSupport = (doc.getObject("YZ_Plane"), [""])
sketch15.MapMode = "FlatFace"
sketch15.AttachmentOffset = App.Placement(App.Vector(0, 0, -53 * 25.4), App.Rotation())
sketch15.addGeometry(Part.LineSegment(App.Vector(1397, 584.2, 0), App.Vector(1397, 50.8, 0)), False)
sketch15.addGeometry(Part.LineSegment(App.Vector(1397, 50.8, 0), App.Vector(1625.6, 50.8, 0)), False)
sketch15.addGeometry(Part.LineSegment(App.Vector(1625.6, 50.8, 0), App.Vector(1625.6, 584.2, 0)), False)
sketch15.addGeometry(Part.LineSegment(App.Vector(1625.6, 584.2, 0), App.Vector(1397, 584.2, 0)), False)
sketch15.addConstraint(Sketcher.Constraint("Coincident", 0, 2, 1, 1))
sketch15.addConstraint(Sketcher.Constraint("Coincident", 1, 2, 2, 1))
sketch15.addConstraint(Sketcher.Constraint("Coincident", 2, 2, 3, 1))
sketch15.addConstraint(Sketcher.Constraint("Coincident", 3, 2, 0, 1))
sketch15.addConstraint(Sketcher.Constraint("Vertical", 0))
sketch15.addConstraint(Sketcher.Constraint("Horizontal", 1))
sketch15.addConstraint(Sketcher.Constraint("Vertical", 2))
sketch15.addConstraint(Sketcher.Constraint("Horizontal", 3))
sketch15.addConstraint(Sketcher.Constraint("DistanceX", 1, 1, 1, 2, Q("9 in")))
sketch15.addConstraint(Sketcher.Constraint("DistanceY", 0, 2, 0, 1, Q("21 in")))
sketch15.addConstraint(Sketcher.Constraint("DistanceX", -1, 1, 0, 2, Q("55 in")))
sketch15.addConstraint(Sketcher.Constraint("DistanceY", -1, 1, 0, 2, Q("2 in")))
pocket14 = body.newObject("PartDesign::Pocket", "Pocket013")
pocket14.Profile = sketch15
pocket14.Type = "ThroughAll"

# Sketch on YZ plane
sketch16 = body.newObject("Sketcher::SketchObject", "Sketch015")
sketch16.AttachmentSupport = (doc.getObject("YZ_Plane"), [""])
sketch16.MapMode = "FlatFace"
sketch16.AttachmentOffset = App.Placement(App.Vector(0, 0, -55 * 25.4), App.Rotation())
sketch16.addGeometry(Part.LineSegment(App.Vector(-1358.9, 584.2, 0), App.Vector(-1358.9, 241.3, 0)), False)
sketch16.addGeometry(Part.LineSegment(App.Vector(-1358.9, 241.3, 0), App.Vector(-1714.5, 241.3, 0)), False)
sketch16.addGeometry(Part.LineSegment(App.Vector(-1714.5, 241.3, 0), App.Vector(-1714.5, 584.2, 0)), False)
sketch16.addGeometry(Part.LineSegment(App.Vector(-1714.5, 584.2, 0), App.Vector(-1358.9, 584.2, 0)), False)
sketch16.addGeometry(Part.LineSegment(App.Vector(-469.9, 584.2, 0), App.Vector(-469.9, 241.3, 0)), False)
sketch16.addGeometry(Part.LineSegment(App.Vector(-469.9, 241.3, 0), App.Vector(-825.5, 241.3, 0)), False)
sketch16.addGeometry(Part.LineSegment(App.Vector(-825.5, 241.3, 0), App.Vector(-825.5, 584.2, 0)), False)
sketch16.addGeometry(Part.LineSegment(App.Vector(-825.5, 584.2, 0), App.Vector(-469.9, 584.2, 0)), False)
sketch16.addGeometry(Part.LineSegment(App.Vector(469.9, 584.2, 0), App.Vector(469.9, 241.3, 0)), False)
sketch16.addGeometry(Part.LineSegment(App.Vector(469.9, 241.3, 0), App.Vector(114.3, 241.3, 0)), False)
sketch16.addGeometry(Part.LineSegment(App.Vector(114.3, 241.3, 0), App.Vector(114.3, 584.2, 0)), False)
sketch16.addGeometry(Part.LineSegment(App.Vector(114.3, 584.2, 0), App.Vector(469.9, 584.2, 0)), False)
sketch16.addGeometry(Part.LineSegment(App.Vector(1168.4, 584.2, 0), App.Vector(1168.4, 469.9, 0)), False)
sketch16.addGeometry(Part.LineSegment(App.Vector(1168.4, 469.9, 0), App.Vector(1016, 469.9, 0)), False)
sketch16.addGeometry(Part.LineSegment(App.Vector(1016, 469.9, 0), App.Vector(1016, 584.2, 0)), False)
sketch16.addGeometry(Part.LineSegment(App.Vector(1016, 584.2, 0), App.Vector(1168.4, 584.2, 0)), False)
sketch16.addConstraint(Sketcher.Constraint("Coincident", 0, 2, 1, 1))
sketch16.addConstraint(Sketcher.Constraint("Coincident", 1, 2, 2, 1))
sketch16.addConstraint(Sketcher.Constraint("Coincident", 2, 2, 3, 1))
sketch16.addConstraint(Sketcher.Constraint("Coincident", 3, 2, 0, 1))
sketch16.addConstraint(Sketcher.Constraint("Coincident", 4, 2, 5, 1))
sketch16.addConstraint(Sketcher.Constraint("Coincident", 5, 2, 6, 1))
sketch16.addConstraint(Sketcher.Constraint("Coincident", 6, 2, 7, 1))
sketch16.addConstraint(Sketcher.Constraint("Coincident", 7, 2, 4, 1))
sketch16.addConstraint(Sketcher.Constraint("Coincident", 8, 2, 9, 1))
sketch16.addConstraint(Sketcher.Constraint("Coincident", 9, 2, 10, 1))
sketch16.addConstraint(Sketcher.Constraint("Coincident", 10, 2, 11, 1))
sketch16.addConstraint(Sketcher.Constraint("Coincident", 11, 2, 8, 1))
sketch16.addConstraint(Sketcher.Constraint("Coincident", 12, 2, 13, 1))
sketch16.addConstraint(Sketcher.Constraint("Coincident", 13, 2, 14, 1))
sketch16.addConstraint(Sketcher.Constraint("Coincident", 14, 2, 15, 1))
sketch16.addConstraint(Sketcher.Constraint("Coincident", 15, 2, 12, 1))
sketch16.addConstraint(Sketcher.Constraint("Vertical", 0))
sketch16.addConstraint(Sketcher.Constraint("Horizontal", 1))
sketch16.addConstraint(Sketcher.Constraint("Vertical", 2))
sketch16.addConstraint(Sketcher.Constraint("Horizontal", 3))
sketch16.addConstraint(Sketcher.Constraint("Vertical", 4))
sketch16.addConstraint(Sketcher.Constraint("Horizontal", 5))
sketch16.addConstraint(Sketcher.Constraint("Vertical", 6))
sketch16.addConstraint(Sketcher.Constraint("Horizontal", 7))
sketch16.addConstraint(Sketcher.Constraint("Vertical", 8))
sketch16.addConstraint(Sketcher.Constraint("Horizontal", 9))
sketch16.addConstraint(Sketcher.Constraint("Vertical", 10))
sketch16.addConstraint(Sketcher.Constraint("Horizontal", 11))
sketch16.addConstraint(Sketcher.Constraint("Vertical", 12))
sketch16.addConstraint(Sketcher.Constraint("Horizontal", 13))
sketch16.addConstraint(Sketcher.Constraint("Vertical", 14))
sketch16.addConstraint(Sketcher.Constraint("Horizontal", 15))
sketch16.addConstraint(Sketcher.Constraint("Symmetric", 4, 2, 8, 2, -2))
sketch16.addConstraint(Sketcher.Constraint("Horizontal", 1, 2, 4, 2))
sketch16.addConstraint(Sketcher.Constraint("Horizontal", 3, 2, 6, 2))
sketch16.addConstraint(Sketcher.Constraint("Horizontal", 7, 2, 10, 2))
sketch16.addConstraint(Sketcher.Constraint("Horizontal", 11, 2, 14, 2))
sketch16.addConstraint(Sketcher.Constraint("Equal", 3, 5))
sketch16.addConstraint(Sketcher.Constraint("Equal", 7, 9))
sketch16.addConstraint(Sketcher.Constraint("DistanceX", 1, 2, 1, 1, Q("14 in")))
sketch16.addConstraint(Sketcher.Constraint("DistanceX", 13, 2, 13, 1, Q("6 in")))
sketch16.addConstraint(Sketcher.Constraint("DistanceY", 0, 2, 0, 1, Q("13.5 in")))
sketch16.addConstraint(Sketcher.Constraint("DistanceY", 12, 2, 12, 1, Q("4.5 in")))
sketch16.addConstraint(Sketcher.Constraint("DistanceY", -1, 1, 2, 2, Q("23 in")))
sketch16.addConstraint(Sketcher.Constraint("DistanceX", -1, 1, 12, 2, Q("46 in")))
sketch16.addConstraint(Sketcher.Constraint("DistanceX", 0, 2, 4, 2, Q("35 in")))
sketch16.addConstraint(Sketcher.Constraint("DistanceX", 4, 2, 8, 2, Q("37 in")))
pocket15 = body.newObject("PartDesign::Pocket", "Pocket014")
pocket15.Profile = sketch16
pocket15.Length = Q("2 in")
pocket15.Reversed = True

# Sketch on YZ plane
sketch17 = body.newObject("Sketcher::SketchObject", "Sketch016")
sketch17.AttachmentSupport = (doc.getObject("YZ_Plane"), [""])
sketch17.MapMode = "FlatFace"
sketch17.addGeometry(Part.LineSegment(App.Vector(190.5, 558.8, 0), App.Vector(190.5, 304.8, 0)), False)
sketch17.addGeometry(Part.LineSegment(App.Vector(190.5, 304.8, 0), App.Vector(495.3, 304.8, 0)), False)
sketch17.addGeometry(Part.LineSegment(App.Vector(495.3, 304.8, 0), App.Vector(495.3, 558.8, 0)), False)
sketch17.addGeometry(Part.LineSegment(App.Vector(495.3, 558.8, 0), App.Vector(190.5, 558.8, 0)), False)
sketch17.addGeometry(Part.LineSegment(App.Vector(1003.3, 660.4, 0), App.Vector(1003.3, 50.8, 0)), False)
sketch17.addGeometry(Part.LineSegment(App.Vector(1003.3, 50.8, 0), App.Vector(1498.6, 50.8, 0)), False)
sketch17.addGeometry(Part.LineSegment(App.Vector(1498.6, 50.8, 0), App.Vector(1498.6, 660.4, 0)), False)
sketch17.addGeometry(Part.LineSegment(App.Vector(1498.6, 660.4, 0), App.Vector(1003.3, 660.4, 0)), False)
sketch17.addConstraint(Sketcher.Constraint("Coincident", 0, 2, 1, 1))
sketch17.addConstraint(Sketcher.Constraint("Coincident", 1, 2, 2, 1))
sketch17.addConstraint(Sketcher.Constraint("Coincident", 2, 2, 3, 1))
sketch17.addConstraint(Sketcher.Constraint("Coincident", 3, 2, 0, 1))
sketch17.addConstraint(Sketcher.Constraint("Coincident", 4, 2, 5, 1))
sketch17.addConstraint(Sketcher.Constraint("Coincident", 5, 2, 6, 1))
sketch17.addConstraint(Sketcher.Constraint("Coincident", 6, 2, 7, 1))
sketch17.addConstraint(Sketcher.Constraint("Coincident", 7, 2, 4, 1))
sketch17.addConstraint(Sketcher.Constraint("Vertical", 0))
sketch17.addConstraint(Sketcher.Constraint("Horizontal", 1))
sketch17.addConstraint(Sketcher.Constraint("Vertical", 2))
sketch17.addConstraint(Sketcher.Constraint("Horizontal", 3))
sketch17.addConstraint(Sketcher.Constraint("Vertical", 4))
sketch17.addConstraint(Sketcher.Constraint("Horizontal", 5))
sketch17.addConstraint(Sketcher.Constraint("Vertical", 6))
sketch17.addConstraint(Sketcher.Constraint("Horizontal", 7))
sketch17.addConstraint(Sketcher.Constraint("DistanceX", 1, 1, 1, 2, Q("12 in")))
sketch17.addConstraint(Sketcher.Constraint("DistanceY", 0, 2, 0, 1, Q("10 in")))
sketch17.addConstraint(Sketcher.Constraint("DistanceY", 4, 2, 4, 1, Q("24 in")))
sketch17.addConstraint(Sketcher.Constraint("DistanceX", 5, 1, 5, 2, Q("19.5 in")))
sketch17.addConstraint(Sketcher.Constraint("DistanceY", -1, 1, 0, 2, Q("12 in")))
sketch17.addConstraint(Sketcher.Constraint("DistanceY", -1, 1, 4, 2, Q("2 in")))
sketch17.addConstraint(Sketcher.Constraint("DistanceX", -1, 1, 5, 2, Q("59 in")))
sketch17.addConstraint(Sketcher.Constraint("DistanceX", 1, 2, 4, 2, Q("20 in")))
pocket16 = body.newObject("PartDesign::Pocket", "Pocket015")
pocket16.Profile = sketch17
pocket16.Length = Q("2 in")

# Sketch on XZ plane
sketch18 = body.newObject("Sketcher::SketchObject", "Sketch017")
sketch18.AttachmentSupport = (doc.getObject("XZ_Plane"), [""])
sketch18.MapMode = "FlatFace"
sketch18.AttachmentOffset = App.Placement(App.Vector(0, 0, 80.5 * 25.4), App.Rotation())
sketch18.addGeometry(Part.LineSegment(App.Vector(-762, 571.5, 0), App.Vector(-762, 50.8, 0)), False)
sketch18.addGeometry(Part.LineSegment(App.Vector(-762, 50.8, 0), App.Vector(-533.4, 50.8, 0)), False)
sketch18.addGeometry(Part.LineSegment(App.Vector(-533.4, 50.8, 0), App.Vector(-533.4, 571.5, 0)), False)
sketch18.addGeometry(Part.LineSegment(App.Vector(-533.4, 571.5, 0), App.Vector(-762, 571.5, 0)), False)
sketch18.addConstraint(Sketcher.Constraint("Coincident", 0, 2, 1, 1))
sketch18.addConstraint(Sketcher.Constraint("Coincident", 1, 2, 2, 1))
sketch18.addConstraint(Sketcher.Constraint("Coincident", 2, 2, 3, 1))
sketch18.addConstraint(Sketcher.Constraint("Coincident", 3, 2, 0, 1))
sketch18.addConstraint(Sketcher.Constraint("Vertical", 0))
sketch18.addConstraint(Sketcher.Constraint("Horizontal", 1))
sketch18.addConstraint(Sketcher.Constraint("Vertical", 2))
sketch18.addConstraint(Sketcher.Constraint("Horizontal", 3))
sketch18.addConstraint(Sketcher.Constraint("DistanceX", 1, 1, 1, 2, Q("9 in")))
sketch18.addConstraint(Sketcher.Constraint("DistanceY", 0, 2, 0, 1, Q("20.5 in")))
sketch18.addConstraint(Sketcher.Constraint("DistanceX", 0, 2, -1, 1, Q("30 in")))
sketch18.addConstraint(Sketcher.Constraint("DistanceY", -1, 1, 0, 2, Q("2 in")))
pocket17 = body.newObject("PartDesign::Pocket", "Pocket016")
pocket17.Profile = sketch18
pocket17.Length = Q("2 in")

# Sketch on XZ plane
sketch19 = body.newObject("Sketcher::SketchObject", "Sketch018")
sketch19.AttachmentSupport = (doc.getObject("XZ_Plane"), [""])
sketch19.MapMode = "FlatFace"
sketch19.AttachmentOffset = App.Placement(App.Vector(0, 0, 6.5 * 25.4), App.Rotation())
sketch19.addGeometry(Part.LineSegment(App.Vector(-406.4, 50.8, 0), App.Vector(-254, 50.8, 0)), False)
sketch19.addGeometry(Part.LineSegment(App.Vector(-254, 50.8, 0), App.Vector(-254, 203.2, 0)), False)
sketch19.addGeometry(Part.LineSegment(App.Vector(-254, 203.2, 0), App.Vector(-304.8, 203.2, 0)), False)
sketch19.addGeometry(Part.LineSegment(App.Vector(-304.8, 203.2, 0), App.Vector(-304.8, 152.4, 0)), False)
sketch19.addGeometry(Part.LineSegment(App.Vector(-304.8, 152.4, 0), App.Vector(-355.6, 152.4, 0)), False)
sketch19.addGeometry(Part.LineSegment(App.Vector(-355.6, 152.4, 0), App.Vector(-355.6, 101.6, 0)), False)
sketch19.addGeometry(Part.LineSegment(App.Vector(-355.6, 101.6, 0), App.Vector(-406.4, 101.6, 0)), False)
sketch19.addGeometry(Part.LineSegment(App.Vector(-406.4, 101.6, 0), App.Vector(-406.4, 50.8, 0)), False)
sketch19.addConstraint(Sketcher.Constraint("Coincident", 0, 2, 1, 1))
sketch19.addConstraint(Sketcher.Constraint("Coincident", 1, 2, 2, 1))
sketch19.addConstraint(Sketcher.Constraint("Coincident", 2, 2, 3, 1))
sketch19.addConstraint(Sketcher.Constraint("Coincident", 3, 2, 4, 1))
sketch19.addConstraint(Sketcher.Constraint("Coincident", 4, 2, 5, 1))
sketch19.addConstraint(Sketcher.Constraint("Coincident", 5, 2, 6, 1))
sketch19.addConstraint(Sketcher.Constraint("Coincident", 6, 2, 7, 1))
sketch19.addConstraint(Sketcher.Constraint("Coincident", 7, 2, 0, 1))
sketch19.addConstraint(Sketcher.Constraint("Horizontal", 0))
sketch19.addConstraint(Sketcher.Constraint("Vertical", 1))
sketch19.addConstraint(Sketcher.Constraint("Horizontal", 2))
sketch19.addConstraint(Sketcher.Constraint("Vertical", 3))
sketch19.addConstraint(Sketcher.Constraint("Horizontal", 4))
sketch19.addConstraint(Sketcher.Constraint("Vertical", 5))
sketch19.addConstraint(Sketcher.Constraint("Horizontal", 6))
sketch19.addConstraint(Sketcher.Constraint("Vertical", 7))
sketch19.addConstraint(Sketcher.Constraint("Equal", 2, 4))
sketch19.addConstraint(Sketcher.Constraint("Equal", 4, 6))
sketch19.addConstraint(Sketcher.Constraint("Equal", 0, 1))
sketch19.addConstraint(Sketcher.Constraint("Equal", 6, 3))
sketch19.addConstraint(Sketcher.Constraint("Equal", 3, 5))
sketch19.addConstraint(Sketcher.Constraint("DistanceX", 0, 1, 0, 2, Q("6 in")))
sketch19.addConstraint(Sketcher.Constraint("DistanceX", 0, 2, -1, 1, Q("10 in")))
sketch19.addConstraint(Sketcher.Constraint("DistanceY", -1, 1, 0, 2, Q("2 in")))
pad2 = body.newObject("PartDesign::Pad", "Pad001")
pad2.Profile = sketch19
pad2.Length = Q("9.5 in")

# Sketch on YZ plane
sketch20 = body.newObject("Sketcher::SketchObject", "Sketch019")
sketch20.AttachmentSupport = (doc.getObject("YZ_Plane"), [""])
sketch20.MapMode = "FlatFace"
sketch20.AttachmentOffset = App.Placement(App.Vector(0, 0, -19.7 * 25.4), App.Rotation())
sketch20.addGeometry(Part.LineSegment(App.Vector(101.6, 584.2, 0), App.Vector(101.6, 50.8, 0)), False)
sketch20.addGeometry(Part.LineSegment(App.Vector(101.6, 50.8, 0), App.Vector(-101.6, 50.8, 0)), False)
sketch20.addGeometry(Part.LineSegment(App.Vector(-101.6, 50.8, 0), App.Vector(-101.6, 584.2, 0)), False)
sketch20.addGeometry(Part.LineSegment(App.Vector(-101.6, 584.2, 0), App.Vector(101.6, 584.2, 0)), False)
sketch20.addConstraint(Sketcher.Constraint("Coincident", 0, 2, 1, 1))
sketch20.addConstraint(Sketcher.Constraint("Coincident", 1, 2, 2, 1))
sketch20.addConstraint(Sketcher.Constraint("Coincident", 2, 2, 3, 1))
sketch20.addConstraint(Sketcher.Constraint("Coincident", 3, 2, 0, 1))
sketch20.addConstraint(Sketcher.Constraint("Vertical", 0))
sketch20.addConstraint(Sketcher.Constraint("Horizontal", 1))
sketch20.addConstraint(Sketcher.Constraint("Vertical", 2))
sketch20.addConstraint(Sketcher.Constraint("Horizontal", 3))
sketch20.addConstraint(Sketcher.Constraint("DistanceX", 1, 2, 1, 1, Q("8 in")))
sketch20.addConstraint(Sketcher.Constraint("DistanceY", 0, 2, 0, 1, Q("21 in")))
sketch20.addConstraint(Sketcher.Constraint("DistanceX", -1, 1, 0, 2, Q("4 in")))
sketch20.addConstraint(Sketcher.Constraint("DistanceY", -1, 1, 0, 2, Q("2 in")))
pocket18 = body.newObject("PartDesign::Pocket", "Pocket017")
pocket18.Profile = sketch20
pocket18.Length = Q("0.7 in")
pocket18.Reversed = True

doc.recompute()
